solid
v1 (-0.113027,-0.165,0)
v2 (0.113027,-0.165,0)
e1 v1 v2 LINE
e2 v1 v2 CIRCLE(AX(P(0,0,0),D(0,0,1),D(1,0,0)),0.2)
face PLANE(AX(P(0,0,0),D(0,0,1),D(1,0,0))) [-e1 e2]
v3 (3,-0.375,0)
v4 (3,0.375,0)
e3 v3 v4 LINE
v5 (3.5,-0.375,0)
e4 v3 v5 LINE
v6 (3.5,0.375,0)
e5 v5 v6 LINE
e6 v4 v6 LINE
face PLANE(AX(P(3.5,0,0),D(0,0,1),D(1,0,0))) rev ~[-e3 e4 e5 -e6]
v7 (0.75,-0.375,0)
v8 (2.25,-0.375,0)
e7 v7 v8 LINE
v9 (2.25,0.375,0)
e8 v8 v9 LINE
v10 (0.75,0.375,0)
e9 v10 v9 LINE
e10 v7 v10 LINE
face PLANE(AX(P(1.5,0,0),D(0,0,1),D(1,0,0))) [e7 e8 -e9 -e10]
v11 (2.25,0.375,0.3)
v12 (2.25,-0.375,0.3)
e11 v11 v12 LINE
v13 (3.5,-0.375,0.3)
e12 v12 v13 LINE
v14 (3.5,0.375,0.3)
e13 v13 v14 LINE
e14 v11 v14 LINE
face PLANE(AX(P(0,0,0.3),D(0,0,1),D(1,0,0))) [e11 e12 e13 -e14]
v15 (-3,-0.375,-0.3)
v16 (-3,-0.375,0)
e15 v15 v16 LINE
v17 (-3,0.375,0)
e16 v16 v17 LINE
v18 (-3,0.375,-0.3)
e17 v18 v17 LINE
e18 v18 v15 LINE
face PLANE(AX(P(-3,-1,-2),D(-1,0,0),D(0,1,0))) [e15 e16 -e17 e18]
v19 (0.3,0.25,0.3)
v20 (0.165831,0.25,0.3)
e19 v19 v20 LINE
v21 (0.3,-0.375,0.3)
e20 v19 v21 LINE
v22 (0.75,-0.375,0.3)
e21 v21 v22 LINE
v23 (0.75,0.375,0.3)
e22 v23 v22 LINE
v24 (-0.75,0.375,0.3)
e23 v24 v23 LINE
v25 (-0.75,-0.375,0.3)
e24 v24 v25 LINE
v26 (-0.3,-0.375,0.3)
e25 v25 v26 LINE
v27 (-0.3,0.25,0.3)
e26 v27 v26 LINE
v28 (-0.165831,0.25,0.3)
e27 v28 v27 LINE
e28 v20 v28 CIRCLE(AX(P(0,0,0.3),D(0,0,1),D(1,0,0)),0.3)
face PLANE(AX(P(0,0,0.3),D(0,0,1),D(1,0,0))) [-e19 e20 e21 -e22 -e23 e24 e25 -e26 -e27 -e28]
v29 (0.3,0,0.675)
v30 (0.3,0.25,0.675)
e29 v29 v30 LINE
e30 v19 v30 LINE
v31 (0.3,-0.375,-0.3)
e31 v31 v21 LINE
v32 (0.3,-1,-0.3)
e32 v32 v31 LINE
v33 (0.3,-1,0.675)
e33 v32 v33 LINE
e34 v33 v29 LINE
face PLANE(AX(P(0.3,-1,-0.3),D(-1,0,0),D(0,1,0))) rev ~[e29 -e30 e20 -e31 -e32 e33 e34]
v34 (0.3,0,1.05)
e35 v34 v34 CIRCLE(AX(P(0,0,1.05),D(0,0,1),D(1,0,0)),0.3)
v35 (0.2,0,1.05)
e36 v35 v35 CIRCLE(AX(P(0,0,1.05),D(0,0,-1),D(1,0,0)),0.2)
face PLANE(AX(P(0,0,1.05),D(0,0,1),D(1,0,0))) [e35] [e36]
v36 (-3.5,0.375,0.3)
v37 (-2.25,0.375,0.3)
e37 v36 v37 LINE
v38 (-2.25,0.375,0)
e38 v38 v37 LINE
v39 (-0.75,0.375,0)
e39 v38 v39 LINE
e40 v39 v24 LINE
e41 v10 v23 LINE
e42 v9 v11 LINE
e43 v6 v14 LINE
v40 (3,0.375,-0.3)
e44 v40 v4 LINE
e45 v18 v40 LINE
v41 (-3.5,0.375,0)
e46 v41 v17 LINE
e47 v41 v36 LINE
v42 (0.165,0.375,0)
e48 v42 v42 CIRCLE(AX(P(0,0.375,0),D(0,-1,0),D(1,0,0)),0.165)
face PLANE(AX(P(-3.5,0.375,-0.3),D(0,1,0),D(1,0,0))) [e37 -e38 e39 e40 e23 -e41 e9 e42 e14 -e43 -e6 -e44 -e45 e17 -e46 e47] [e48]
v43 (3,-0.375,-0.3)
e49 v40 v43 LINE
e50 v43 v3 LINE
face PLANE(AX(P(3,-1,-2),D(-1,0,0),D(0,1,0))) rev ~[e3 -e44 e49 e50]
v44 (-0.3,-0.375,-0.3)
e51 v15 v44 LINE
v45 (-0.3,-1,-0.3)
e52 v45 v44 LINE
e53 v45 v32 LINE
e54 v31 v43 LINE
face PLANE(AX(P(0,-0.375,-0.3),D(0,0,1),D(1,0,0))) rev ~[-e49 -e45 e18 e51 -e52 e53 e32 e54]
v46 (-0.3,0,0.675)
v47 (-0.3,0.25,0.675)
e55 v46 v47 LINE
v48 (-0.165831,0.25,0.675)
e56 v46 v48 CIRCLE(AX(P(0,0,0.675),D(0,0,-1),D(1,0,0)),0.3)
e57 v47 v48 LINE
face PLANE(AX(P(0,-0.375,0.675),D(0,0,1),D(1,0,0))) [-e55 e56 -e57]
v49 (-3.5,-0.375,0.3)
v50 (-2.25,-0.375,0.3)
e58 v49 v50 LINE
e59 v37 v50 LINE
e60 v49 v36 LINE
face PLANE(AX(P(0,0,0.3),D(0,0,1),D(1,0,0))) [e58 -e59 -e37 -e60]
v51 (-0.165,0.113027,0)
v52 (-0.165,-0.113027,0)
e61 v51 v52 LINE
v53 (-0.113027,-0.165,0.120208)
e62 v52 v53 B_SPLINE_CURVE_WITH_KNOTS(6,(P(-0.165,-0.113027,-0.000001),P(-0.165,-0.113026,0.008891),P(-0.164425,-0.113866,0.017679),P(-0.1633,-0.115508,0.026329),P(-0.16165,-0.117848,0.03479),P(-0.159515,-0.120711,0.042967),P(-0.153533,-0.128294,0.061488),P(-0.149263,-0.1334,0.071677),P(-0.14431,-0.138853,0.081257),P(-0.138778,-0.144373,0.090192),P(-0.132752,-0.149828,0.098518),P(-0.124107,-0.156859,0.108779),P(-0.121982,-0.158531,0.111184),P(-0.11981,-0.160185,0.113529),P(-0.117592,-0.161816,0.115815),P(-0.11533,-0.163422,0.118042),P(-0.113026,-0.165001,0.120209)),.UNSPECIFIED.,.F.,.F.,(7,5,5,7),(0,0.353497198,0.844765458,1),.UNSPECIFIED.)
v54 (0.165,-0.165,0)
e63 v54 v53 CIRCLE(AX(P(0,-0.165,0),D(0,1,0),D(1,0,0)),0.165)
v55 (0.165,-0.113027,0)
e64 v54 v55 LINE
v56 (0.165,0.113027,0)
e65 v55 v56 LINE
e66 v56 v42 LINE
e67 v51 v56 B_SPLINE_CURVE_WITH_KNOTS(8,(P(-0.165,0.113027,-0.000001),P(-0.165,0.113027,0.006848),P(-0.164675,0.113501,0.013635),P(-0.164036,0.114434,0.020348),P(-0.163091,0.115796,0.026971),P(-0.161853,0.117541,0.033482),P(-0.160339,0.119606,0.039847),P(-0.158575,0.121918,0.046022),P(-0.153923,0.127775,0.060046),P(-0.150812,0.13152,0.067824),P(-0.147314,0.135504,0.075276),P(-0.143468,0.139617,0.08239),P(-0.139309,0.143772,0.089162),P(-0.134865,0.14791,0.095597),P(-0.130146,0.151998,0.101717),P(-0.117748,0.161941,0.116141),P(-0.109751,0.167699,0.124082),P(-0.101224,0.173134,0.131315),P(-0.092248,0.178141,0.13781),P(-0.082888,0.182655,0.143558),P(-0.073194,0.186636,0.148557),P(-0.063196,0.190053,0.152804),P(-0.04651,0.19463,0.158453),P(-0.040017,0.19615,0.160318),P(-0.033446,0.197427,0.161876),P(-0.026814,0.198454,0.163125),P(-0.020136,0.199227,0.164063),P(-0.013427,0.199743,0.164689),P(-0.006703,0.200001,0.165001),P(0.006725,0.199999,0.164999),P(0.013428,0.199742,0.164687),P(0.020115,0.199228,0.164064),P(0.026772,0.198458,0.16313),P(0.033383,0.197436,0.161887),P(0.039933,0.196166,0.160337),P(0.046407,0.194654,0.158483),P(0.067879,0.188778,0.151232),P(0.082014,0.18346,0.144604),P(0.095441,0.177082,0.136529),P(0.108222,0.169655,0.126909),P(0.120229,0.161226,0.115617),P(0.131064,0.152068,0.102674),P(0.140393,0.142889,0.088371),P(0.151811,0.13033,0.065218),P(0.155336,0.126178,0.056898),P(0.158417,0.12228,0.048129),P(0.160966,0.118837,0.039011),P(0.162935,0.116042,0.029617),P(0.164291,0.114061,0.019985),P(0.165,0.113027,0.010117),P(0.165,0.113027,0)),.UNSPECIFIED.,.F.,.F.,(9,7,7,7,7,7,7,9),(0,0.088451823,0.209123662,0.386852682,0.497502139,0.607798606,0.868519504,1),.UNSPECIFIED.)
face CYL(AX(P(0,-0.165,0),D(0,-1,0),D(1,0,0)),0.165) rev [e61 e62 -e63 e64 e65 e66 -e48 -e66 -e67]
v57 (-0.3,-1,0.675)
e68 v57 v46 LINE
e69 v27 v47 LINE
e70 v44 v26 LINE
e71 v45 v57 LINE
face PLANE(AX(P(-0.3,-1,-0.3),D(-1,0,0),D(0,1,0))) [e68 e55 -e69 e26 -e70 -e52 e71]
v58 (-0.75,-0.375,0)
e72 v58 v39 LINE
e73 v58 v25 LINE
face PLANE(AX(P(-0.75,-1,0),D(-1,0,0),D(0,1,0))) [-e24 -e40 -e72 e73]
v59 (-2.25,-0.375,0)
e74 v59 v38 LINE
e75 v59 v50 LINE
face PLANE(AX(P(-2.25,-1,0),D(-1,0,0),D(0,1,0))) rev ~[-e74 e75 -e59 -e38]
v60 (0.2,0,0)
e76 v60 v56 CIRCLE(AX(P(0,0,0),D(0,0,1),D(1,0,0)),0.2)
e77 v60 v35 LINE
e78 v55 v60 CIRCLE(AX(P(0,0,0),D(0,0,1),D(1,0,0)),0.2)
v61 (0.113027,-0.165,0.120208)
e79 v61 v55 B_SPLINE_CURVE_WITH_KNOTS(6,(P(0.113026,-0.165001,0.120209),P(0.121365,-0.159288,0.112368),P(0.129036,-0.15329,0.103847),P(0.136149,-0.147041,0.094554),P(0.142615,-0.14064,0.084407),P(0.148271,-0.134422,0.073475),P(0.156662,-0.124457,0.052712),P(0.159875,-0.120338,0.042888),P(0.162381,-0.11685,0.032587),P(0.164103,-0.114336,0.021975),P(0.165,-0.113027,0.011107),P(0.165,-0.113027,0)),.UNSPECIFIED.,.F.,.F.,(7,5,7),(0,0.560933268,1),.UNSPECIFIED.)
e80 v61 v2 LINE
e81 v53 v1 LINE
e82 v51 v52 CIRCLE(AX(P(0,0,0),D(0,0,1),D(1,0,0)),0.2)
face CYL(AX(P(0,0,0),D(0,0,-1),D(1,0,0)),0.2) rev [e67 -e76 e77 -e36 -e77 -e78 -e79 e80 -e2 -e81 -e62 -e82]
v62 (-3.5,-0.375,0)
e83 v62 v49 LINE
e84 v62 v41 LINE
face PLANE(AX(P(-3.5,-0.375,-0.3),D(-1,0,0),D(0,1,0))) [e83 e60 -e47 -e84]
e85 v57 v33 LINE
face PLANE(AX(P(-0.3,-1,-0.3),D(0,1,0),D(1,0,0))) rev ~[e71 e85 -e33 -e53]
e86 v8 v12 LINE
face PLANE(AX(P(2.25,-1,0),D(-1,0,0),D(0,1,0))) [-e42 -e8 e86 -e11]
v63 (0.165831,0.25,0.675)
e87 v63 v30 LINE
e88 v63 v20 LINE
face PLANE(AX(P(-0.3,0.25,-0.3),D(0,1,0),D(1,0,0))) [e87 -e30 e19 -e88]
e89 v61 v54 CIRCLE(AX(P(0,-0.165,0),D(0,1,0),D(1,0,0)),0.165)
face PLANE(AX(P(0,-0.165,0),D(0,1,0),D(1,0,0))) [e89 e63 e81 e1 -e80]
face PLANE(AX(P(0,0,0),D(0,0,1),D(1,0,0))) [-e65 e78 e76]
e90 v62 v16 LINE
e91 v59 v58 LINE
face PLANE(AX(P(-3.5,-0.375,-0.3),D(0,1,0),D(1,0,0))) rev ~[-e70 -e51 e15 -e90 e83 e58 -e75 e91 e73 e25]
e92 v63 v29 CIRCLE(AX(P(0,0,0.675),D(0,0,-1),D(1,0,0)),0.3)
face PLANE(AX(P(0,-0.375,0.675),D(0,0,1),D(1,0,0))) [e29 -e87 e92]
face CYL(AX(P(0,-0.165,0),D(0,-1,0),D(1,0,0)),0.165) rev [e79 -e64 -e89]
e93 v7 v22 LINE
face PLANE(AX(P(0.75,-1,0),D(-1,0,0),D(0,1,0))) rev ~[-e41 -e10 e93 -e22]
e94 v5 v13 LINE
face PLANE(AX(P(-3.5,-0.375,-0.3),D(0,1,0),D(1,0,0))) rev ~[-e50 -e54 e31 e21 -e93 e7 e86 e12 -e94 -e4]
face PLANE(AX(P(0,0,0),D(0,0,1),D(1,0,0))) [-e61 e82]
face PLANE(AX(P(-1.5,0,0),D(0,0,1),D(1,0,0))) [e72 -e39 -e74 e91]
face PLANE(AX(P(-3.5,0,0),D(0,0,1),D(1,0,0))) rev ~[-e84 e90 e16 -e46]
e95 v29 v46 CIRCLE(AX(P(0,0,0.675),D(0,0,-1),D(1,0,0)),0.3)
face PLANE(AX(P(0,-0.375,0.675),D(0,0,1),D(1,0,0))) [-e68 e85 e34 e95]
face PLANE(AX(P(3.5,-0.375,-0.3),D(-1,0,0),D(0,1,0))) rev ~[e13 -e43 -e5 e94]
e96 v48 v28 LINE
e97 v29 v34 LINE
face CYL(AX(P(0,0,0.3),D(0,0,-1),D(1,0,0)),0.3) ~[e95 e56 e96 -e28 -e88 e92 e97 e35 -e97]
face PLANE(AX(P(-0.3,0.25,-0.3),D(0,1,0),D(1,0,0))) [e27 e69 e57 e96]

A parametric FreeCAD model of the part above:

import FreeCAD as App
import Part
import Sketcher

V = App.Vector
Q = App.Units.Quantity

doc = App.newDocument("Part")
body = doc.addObject("PartDesign::Body", "Body")

# Sketch on XY plane
sketch1 = body.newObject("Sketcher::SketchObject", "Sketch")
sketch1.AttachmentSupport = (doc.getObject("XY_Plane"), [""])
sketch1.MapMode = "FlatFace"
sketch1.addGeometry(Part.Circle(V(0, 0, 0), V(0, 0, 1), 0.2), False)
sketch1.addConstraint([
    Sketcher.Constraint("Coincident", 0, 3, -1, 1),
    Sketcher.Constraint("Diameter", 0, Q("0.4 mm")),
])
pad1 = body.newObject("PartDesign::Pad", "Pad")
pad1.Profile = sketch1
pad1.Length = 9
body2 = doc.addObject("PartDesign::Body", "Body001")

# Sketch on XY plane
sketch2 = body2.newObject("Sketcher::SketchObject", "Sketch001")
sketch2.AttachmentSupport = (doc.getObject("XY_Plane001"), [""])
sketch2.MapMode = "FlatFace"
sketch2.AttachmentOffset = App.Placement(V(0, 0, -2), App.Rotation())
sketch2.addGeometry([
    Part.LineSegment(V(3, 1, 0), V(3, -1, 0)),
    Part.LineSegment(V(3, -1, 0), V(4, -1, 0)),
    Part.LineSegment(V(4, -1, 0), V(4, 1, 0)),
    Part.LineSegment(V(4, 1, 0), V(3, 1, 0)),
], False)
sketch2.addConstraint([
    Sketcher.Constraint("Coincident", 0, 2, 1, 1),
    Sketcher.Constraint("Coincident", 1, 2, 2, 1),
    Sketcher.Constraint("Coincident", 2, 2, 3, 1),
    Sketcher.Constraint("Coincident", 3, 2, 0, 1),
    Sketcher.Constraint("Vertical", 0),
    Sketcher.Constraint("Horizontal", 1),
    Sketcher.Constraint("Vertical", 2),
    Sketcher.Constraint("Horizontal", 3),
    Sketcher.Constraint("DistanceX", 1, 1, 1, 2, Q("1 mm")),
    Sketcher.Constraint("DistanceY", 0, 2, 0, 1, Q("2 mm")),
    Sketcher.Constraint("DistanceX", -1, 1, 0, 2, Q("3 mm")),
    Sketcher.Constraint("DistanceY", 0, 2, -1, 1, Q("1 mm")),
])
pad2 = body2.newObject("PartDesign::Pad", "Pad001")
pad2.Profile = sketch2
pad2.Length = 2
body3 = doc.addObject("PartDesign::Body", "Body002")

# Sketch on XY plane
sketch3 = body3.newObject("Sketcher::SketchObject", "Sketch002")
sketch3.AttachmentSupport = (doc.getObject("XY_Plane002"), [""])
sketch3.MapMode = "FlatFace"
sketch3.AttachmentOffset = App.Placement(V(0, 0, -2), App.Rotation())
sketch3.addGeometry([
    Part.LineSegment(V(-4, 1, 0), V(-4, -1, 0)),
    Part.LineSegment(V(-4, -1, 0), V(-3, -1, 0)),
    Part.LineSegment(V(-3, -1, 0), V(-3, 1, 0)),
    Part.LineSegment(V(-3, 1, 0), V(-4, 1, 0)),
], False)
sketch3.addConstraint([
    Sketcher.Constraint("Coincident", 0, 2, 1, 1),
    Sketcher.Constraint("Coincident", 1, 2, 2, 1),
    Sketcher.Constraint("Coincident", 2, 2, 3, 1),
    Sketcher.Constraint("Coincident", 3, 2, 0, 1),
    Sketcher.Constraint("Vertical", 0),
    Sketcher.Constraint("Horizontal", 1),
    Sketcher.Constraint("Vertical", 2),
    Sketcher.Constraint("Horizontal", 3),
    Sketcher.Constraint("DistanceX", 1, 1, 1, 2, Q("1 mm")),
    Sketcher.Constraint("DistanceY", 0, 2, 0, 1, Q("2 mm")),
    Sketcher.Constraint("DistanceX", 0, 2, -1, 1, Q("4 mm")),
    Sketcher.Constraint("DistanceY", 0, 2, -1, 1, Q("1 mm")),
])
pad3 = body3.newObject("PartDesign::Pad", "Pad002")
pad3.Profile = sketch3
pad3.Length = 2
body4 = doc.addObject("PartDesign::Body", "Body003")

# Sketch on XY plane
sketch4 = body4.newObject("Sketcher::SketchObject", "Sketch003")
sketch4.AttachmentSupport = (doc.getObject("XY_Plane003"), [""])
sketch4.MapMode = "FlatFace"
sketch4.addGeometry([
    Part.LineSegment(V(0.8, 1, 0), V(0.8, -1, 0)),
    Part.LineSegment(V(0.8, -1, 0), V(2.2, -1, 0)),
    Part.LineSegment(V(2.2, -1, 0), V(2.2, 1, 0)),
    Part.LineSegment(V(2.2, 1, 0), V(0.8, 1, 0)),
], False)
sketch4.addConstraint([
    Sketcher.Constraint("Coincident", 0, 2, 1, 1),
    Sketcher.Constraint("Coincident", 1, 2, 2, 1),
    Sketcher.Constraint("Coincident", 2, 2, 3, 1),
    Sketcher.Constraint("Coincident", 3, 2, 0, 1),
    Sketcher.Constraint("Vertical", 0),
    Sketcher.Constraint("Horizontal", 1),
    Sketcher.Constraint("Vertical", 2),
    Sketcher.Constraint("Horizontal", 3),
    Sketcher.Constraint("DistanceY", 0, 2, 0, 1, Q("2 mm")),
    Sketcher.Constraint("DistanceX", 1, 1, 1, 2, Q("1.5 mm")),
    Sketcher.Constraint("DistanceY", 0, 2, -1, 1, Q("1 mm")),
    Sketcher.Constraint("DistanceX", -1, 1, 0, 2, Q("0.75 mm")),
])
pad4 = body4.newObject("PartDesign::Pad", "Pad003")
pad4.Profile = sketch4
pad4.Length = 1
body5 = doc.addObject("PartDesign::Body", "Body004")

# Sketch on XY plane
sketch5 = body5.newObject("Sketcher::SketchObject", "Sketch004")
sketch5.AttachmentSupport = (doc.getObject("XY_Plane004"), [""])
sketch5.MapMode = "FlatFace"
sketch5.addGeometry([
    Part.LineSegment(V(-2.2, 1, 0), V(-2.2, -1, 0)),
    Part.LineSegment(V(-2.2, -1, 0), V(-0.8, -1, 0)),
    Part.LineSegment(V(-0.8, -1, 0), V(-0.8, 1, 0)),
    Part.LineSegment(V(-0.8, 1, 0), V(-2.2, 1, 0)),
], False)
sketch5.addConstraint([
    Sketcher.Constraint("Coincident", 0, 2, 1, 1),
    Sketcher.Constraint("Coincident", 1, 2, 2, 1),
    Sketcher.Constraint("Coincident", 2, 2, 3, 1),
    Sketcher.Constraint("Coincident", 3, 2, 0, 1),
    Sketcher.Constraint("Vertical", 0),
    Sketcher.Constraint("Horizontal", 1),
    Sketcher.Constraint("Vertical", 2),
    Sketcher.Constraint("Horizontal", 3),
    Sketcher.Constraint("DistanceY", 0, 2, 0, 1, Q("2 mm")),
    Sketcher.Constraint("DistanceX", 1, 1, 1, 2, Q("1.5 mm")),
    Sketcher.Constraint("DistanceY", 0, 2, -1, 1, Q("1 mm")),
    Sketcher.Constraint("DistanceX", 0, 2, -1, 1, Q("2.25 mm")),
])
pad5 = body5.newObject("PartDesign::Pad", "Pad004")
pad5.Profile = sketch5
pad5.Length = 1
body6 = doc.addObject("PartDesign::Body", "Body005")

# Sketch on XY plane
sketch6 = body6.newObject("Sketcher::SketchObject", "Sketch005")
sketch6.AttachmentSupport = (doc.getObject("XY_Plane005"), [""])
sketch6.MapMode = "FlatFace"
sketch6.addGeometry(Part.Circle(V(0, 0, 0), V(0, 0, 1), 0.17), False)
sketch6.addConstraint([
    Sketcher.Constraint("Coincident", 0, 3, -1, 1),
    Sketcher.Constraint("Diameter", 0, Q("0.33 mm")),
])
pad6 = body6.newObject("PartDesign::Pad", "Pad005")
pad6.Profile = sketch6
pad6.Length = 14
body7 = doc.addObject("PartDesign::Body", "Body006")
doc.recompute()

body6.Placement = App.Placement(V(0, 0, 0), App.Rotation(V(1, 0, 0), 270))
boolean = body7.newObject("PartDesign::Boolean", "Boolean")
boolean.Type = "Fuse"
boolean.addObjects([body6])
body8 = doc.addObject("PartDesign::Body", "Body007")
body8.AllowCompound = True
doc.recompute()

body7.Placement = App.Placement(V(0, -0.165, 0), App.Rotation(V(0, 0, 1), 0))
boolean2 = body8.newObject("PartDesign::Boolean", "Boolean001")
boolean2.Type = "Fuse"
boolean2.addObjects([body7])
doc.recompute()

boolean3 = body8.newObject("PartDesign::Boolean", "Boolean002")
boolean3.Type = "Fuse"
boolean3.addObjects([body])
doc.recompute()

boolean4 = body8.newObject("PartDesign::Boolean", "Boolean003")
boolean4.Type = "Fuse"
boolean4.addObjects([body2])
doc.recompute()

boolean5 = body8.newObject("PartDesign::Boolean", "Boolean004")
boolean5.Type = "Fuse"
boolean5.addObjects([body3])
doc.recompute()

boolean6 = body8.newObject("PartDesign::Boolean", "Boolean005")
boolean6.Type = "Fuse"
boolean6.addObjects([body4])
doc.recompute()

boolean7 = body8.newObject("PartDesign::Boolean", "Boolean006")
boolean7.Type = "Fuse"
boolean7.addObjects([body5])
body9 = doc.addObject("PartDesign::Body", "Body008")

# Sketch on XY plane
sketch7 = body9.newObject("Sketcher::SketchObject", "Sketch006")
sketch7.AttachmentSupport = (doc.getObject("XY_Plane008"), [""])
sketch7.MapMode = "FlatFace"
sketch7.AttachmentOffset = App.Placement(V(0, 0, -0.3), App.Rotation())
sketch7.addGeometry([
    Part.LineSegment(V(-0.3, 0.2, 0), V(-0.3, -1, 0)),
    Part.LineSegment(V(-0.3, -1, 0), V(0.3, -1, 0)),
    Part.LineSegment(V(0.3, -1, 0), V(0.3, 0.2, 0)),
    Part.LineSegment(V(0.3, 0.2, 0), V(-0.3, 0.2, 0)),
], False)
sketch7.addConstraint([
    Sketcher.Constraint("Coincident", 0, 2, 1, 1),
    Sketcher.Constraint("Coincident", 1, 2, 2, 1),
    Sketcher.Constraint("Coincident", 2, 2, 3, 1),
    Sketcher.Constraint("Coincident", 3, 2, 0, 1),
    Sketcher.Constraint("Vertical", 0),
    Sketcher.Constraint("Horizontal", 1),
    Sketcher.Constraint("Vertical", 2),
    Sketcher.Constraint("Horizontal", 3),
    Sketcher.Constraint("DistanceX", 1, 1, 1, 2, Q("0.6 mm")),
    Sketcher.Constraint("DistanceY", 0, 2, -1, 1, Q("1 mm")),
    Sketcher.Constraint("DistanceY", 0, 2, 0, 1, Q("1.25 mm")),
    Sketcher.Constraint("DistanceX", 0, 2, -1, 1, Q("0.3 mm")),
])
pad7 = body9.newObject("PartDesign::Pad", "Pad006")
pad7.Profile = sketch7
pad7.Length = 0.975
body10 = doc.addObject("PartDesign::Body", "Body009")

# Sketch on XY plane
sketch8 = body10.newObject("Sketcher::SketchObject", "Sketch007")
sketch8.AttachmentSupport = (doc.getObject("XY_Plane009"), [""])
sketch8.MapMode = "FlatFace"
sketch8.AttachmentOffset = App.Placement(V(0, 0, 0.3), App.Rotation())
sketch8.addGeometry(Part.Circle(V(0, 0, 0), V(0, 0, 1), 0.3), False)
sketch8.addConstraint([
    Sketcher.Constraint("Coincident", 0, 3, -1, 1),
    Sketcher.Constraint("Diameter", 0, Q("0.6 mm")),
])
pad8 = body10.newObject("PartDesign::Pad", "Pad007")
pad8.Profile = sketch8
pad8.Length = 0.75
body11 = doc.addObject("PartDesign::Body", "Body010")

# Sketch on XY plane
sketch9 = body11.newObject("Sketcher::SketchObject", "Sketch008")
sketch9.AttachmentSupport = (doc.getObject("XY_Plane010"), [""])
sketch9.MapMode = "FlatFace"
sketch9.AttachmentOffset = App.Placement(V(0, 0, -0.3), App.Rotation())
sketch9.addGeometry([
    Part.LineSegment(V(-3.5, 0.4, 0), V(-3.5, -0.4, 0)),
    Part.LineSegment(V(-3.5, -0.4, 0), V(3.5, -0.4, 0)),
    Part.LineSegment(V(3.5, -0.4, 0), V(3.5, 0.4, 0)),
    Part.LineSegment(V(3.5, 0.4, 0), V(-3.5, 0.4, 0)),
], False)
sketch9.addConstraint([
    Sketcher.Constraint("Coincident", 0, 2, 1, 1),
    Sketcher.Constraint("Coincident", 1, 2, 2, 1),
    Sketcher.Constraint("Coincident", 2, 2, 3, 1),
    Sketcher.Constraint("Coincident", 3, 2, 0, 1),
    Sketcher.Constraint("Vertical", 0),
    Sketcher.Constraint("Horizontal", 1),
    Sketcher.Constraint("Vertical", 2),
    Sketcher.Constraint("Horizontal", 3),
    Sketcher.Constraint("Symmetric", 0, 2, 2, 2, -1, 1),
    Sketcher.Constraint("DistanceX", 1, 1, 1, 2, Q("7 mm")),
    Sketcher.Constraint("DistanceY", 0, 2, 0, 1, Q("0.75 mm")),
])
pad9 = body11.newObject("PartDesign::Pad", "Pad008")
pad9.Profile = sketch9
pad9.Length = 0.6
doc.recompute()

boolean8 = body11.newObject("PartDesign::Boolean", "Boolean007")
boolean8.Type = "Fuse"
boolean8.addObjects([body10])
doc.recompute()

boolean9 = body11.newObject("PartDesign::Boolean", "Boolean008")
boolean9.Type = "Fuse"
boolean9.addObjects([body9])
doc.recompute()

boolean10 = body11.newObject("PartDesign::Boolean", "Boolean009")
boolean10.Type = "Cut"
boolean10.addObjects([body8])

doc.recompute()
